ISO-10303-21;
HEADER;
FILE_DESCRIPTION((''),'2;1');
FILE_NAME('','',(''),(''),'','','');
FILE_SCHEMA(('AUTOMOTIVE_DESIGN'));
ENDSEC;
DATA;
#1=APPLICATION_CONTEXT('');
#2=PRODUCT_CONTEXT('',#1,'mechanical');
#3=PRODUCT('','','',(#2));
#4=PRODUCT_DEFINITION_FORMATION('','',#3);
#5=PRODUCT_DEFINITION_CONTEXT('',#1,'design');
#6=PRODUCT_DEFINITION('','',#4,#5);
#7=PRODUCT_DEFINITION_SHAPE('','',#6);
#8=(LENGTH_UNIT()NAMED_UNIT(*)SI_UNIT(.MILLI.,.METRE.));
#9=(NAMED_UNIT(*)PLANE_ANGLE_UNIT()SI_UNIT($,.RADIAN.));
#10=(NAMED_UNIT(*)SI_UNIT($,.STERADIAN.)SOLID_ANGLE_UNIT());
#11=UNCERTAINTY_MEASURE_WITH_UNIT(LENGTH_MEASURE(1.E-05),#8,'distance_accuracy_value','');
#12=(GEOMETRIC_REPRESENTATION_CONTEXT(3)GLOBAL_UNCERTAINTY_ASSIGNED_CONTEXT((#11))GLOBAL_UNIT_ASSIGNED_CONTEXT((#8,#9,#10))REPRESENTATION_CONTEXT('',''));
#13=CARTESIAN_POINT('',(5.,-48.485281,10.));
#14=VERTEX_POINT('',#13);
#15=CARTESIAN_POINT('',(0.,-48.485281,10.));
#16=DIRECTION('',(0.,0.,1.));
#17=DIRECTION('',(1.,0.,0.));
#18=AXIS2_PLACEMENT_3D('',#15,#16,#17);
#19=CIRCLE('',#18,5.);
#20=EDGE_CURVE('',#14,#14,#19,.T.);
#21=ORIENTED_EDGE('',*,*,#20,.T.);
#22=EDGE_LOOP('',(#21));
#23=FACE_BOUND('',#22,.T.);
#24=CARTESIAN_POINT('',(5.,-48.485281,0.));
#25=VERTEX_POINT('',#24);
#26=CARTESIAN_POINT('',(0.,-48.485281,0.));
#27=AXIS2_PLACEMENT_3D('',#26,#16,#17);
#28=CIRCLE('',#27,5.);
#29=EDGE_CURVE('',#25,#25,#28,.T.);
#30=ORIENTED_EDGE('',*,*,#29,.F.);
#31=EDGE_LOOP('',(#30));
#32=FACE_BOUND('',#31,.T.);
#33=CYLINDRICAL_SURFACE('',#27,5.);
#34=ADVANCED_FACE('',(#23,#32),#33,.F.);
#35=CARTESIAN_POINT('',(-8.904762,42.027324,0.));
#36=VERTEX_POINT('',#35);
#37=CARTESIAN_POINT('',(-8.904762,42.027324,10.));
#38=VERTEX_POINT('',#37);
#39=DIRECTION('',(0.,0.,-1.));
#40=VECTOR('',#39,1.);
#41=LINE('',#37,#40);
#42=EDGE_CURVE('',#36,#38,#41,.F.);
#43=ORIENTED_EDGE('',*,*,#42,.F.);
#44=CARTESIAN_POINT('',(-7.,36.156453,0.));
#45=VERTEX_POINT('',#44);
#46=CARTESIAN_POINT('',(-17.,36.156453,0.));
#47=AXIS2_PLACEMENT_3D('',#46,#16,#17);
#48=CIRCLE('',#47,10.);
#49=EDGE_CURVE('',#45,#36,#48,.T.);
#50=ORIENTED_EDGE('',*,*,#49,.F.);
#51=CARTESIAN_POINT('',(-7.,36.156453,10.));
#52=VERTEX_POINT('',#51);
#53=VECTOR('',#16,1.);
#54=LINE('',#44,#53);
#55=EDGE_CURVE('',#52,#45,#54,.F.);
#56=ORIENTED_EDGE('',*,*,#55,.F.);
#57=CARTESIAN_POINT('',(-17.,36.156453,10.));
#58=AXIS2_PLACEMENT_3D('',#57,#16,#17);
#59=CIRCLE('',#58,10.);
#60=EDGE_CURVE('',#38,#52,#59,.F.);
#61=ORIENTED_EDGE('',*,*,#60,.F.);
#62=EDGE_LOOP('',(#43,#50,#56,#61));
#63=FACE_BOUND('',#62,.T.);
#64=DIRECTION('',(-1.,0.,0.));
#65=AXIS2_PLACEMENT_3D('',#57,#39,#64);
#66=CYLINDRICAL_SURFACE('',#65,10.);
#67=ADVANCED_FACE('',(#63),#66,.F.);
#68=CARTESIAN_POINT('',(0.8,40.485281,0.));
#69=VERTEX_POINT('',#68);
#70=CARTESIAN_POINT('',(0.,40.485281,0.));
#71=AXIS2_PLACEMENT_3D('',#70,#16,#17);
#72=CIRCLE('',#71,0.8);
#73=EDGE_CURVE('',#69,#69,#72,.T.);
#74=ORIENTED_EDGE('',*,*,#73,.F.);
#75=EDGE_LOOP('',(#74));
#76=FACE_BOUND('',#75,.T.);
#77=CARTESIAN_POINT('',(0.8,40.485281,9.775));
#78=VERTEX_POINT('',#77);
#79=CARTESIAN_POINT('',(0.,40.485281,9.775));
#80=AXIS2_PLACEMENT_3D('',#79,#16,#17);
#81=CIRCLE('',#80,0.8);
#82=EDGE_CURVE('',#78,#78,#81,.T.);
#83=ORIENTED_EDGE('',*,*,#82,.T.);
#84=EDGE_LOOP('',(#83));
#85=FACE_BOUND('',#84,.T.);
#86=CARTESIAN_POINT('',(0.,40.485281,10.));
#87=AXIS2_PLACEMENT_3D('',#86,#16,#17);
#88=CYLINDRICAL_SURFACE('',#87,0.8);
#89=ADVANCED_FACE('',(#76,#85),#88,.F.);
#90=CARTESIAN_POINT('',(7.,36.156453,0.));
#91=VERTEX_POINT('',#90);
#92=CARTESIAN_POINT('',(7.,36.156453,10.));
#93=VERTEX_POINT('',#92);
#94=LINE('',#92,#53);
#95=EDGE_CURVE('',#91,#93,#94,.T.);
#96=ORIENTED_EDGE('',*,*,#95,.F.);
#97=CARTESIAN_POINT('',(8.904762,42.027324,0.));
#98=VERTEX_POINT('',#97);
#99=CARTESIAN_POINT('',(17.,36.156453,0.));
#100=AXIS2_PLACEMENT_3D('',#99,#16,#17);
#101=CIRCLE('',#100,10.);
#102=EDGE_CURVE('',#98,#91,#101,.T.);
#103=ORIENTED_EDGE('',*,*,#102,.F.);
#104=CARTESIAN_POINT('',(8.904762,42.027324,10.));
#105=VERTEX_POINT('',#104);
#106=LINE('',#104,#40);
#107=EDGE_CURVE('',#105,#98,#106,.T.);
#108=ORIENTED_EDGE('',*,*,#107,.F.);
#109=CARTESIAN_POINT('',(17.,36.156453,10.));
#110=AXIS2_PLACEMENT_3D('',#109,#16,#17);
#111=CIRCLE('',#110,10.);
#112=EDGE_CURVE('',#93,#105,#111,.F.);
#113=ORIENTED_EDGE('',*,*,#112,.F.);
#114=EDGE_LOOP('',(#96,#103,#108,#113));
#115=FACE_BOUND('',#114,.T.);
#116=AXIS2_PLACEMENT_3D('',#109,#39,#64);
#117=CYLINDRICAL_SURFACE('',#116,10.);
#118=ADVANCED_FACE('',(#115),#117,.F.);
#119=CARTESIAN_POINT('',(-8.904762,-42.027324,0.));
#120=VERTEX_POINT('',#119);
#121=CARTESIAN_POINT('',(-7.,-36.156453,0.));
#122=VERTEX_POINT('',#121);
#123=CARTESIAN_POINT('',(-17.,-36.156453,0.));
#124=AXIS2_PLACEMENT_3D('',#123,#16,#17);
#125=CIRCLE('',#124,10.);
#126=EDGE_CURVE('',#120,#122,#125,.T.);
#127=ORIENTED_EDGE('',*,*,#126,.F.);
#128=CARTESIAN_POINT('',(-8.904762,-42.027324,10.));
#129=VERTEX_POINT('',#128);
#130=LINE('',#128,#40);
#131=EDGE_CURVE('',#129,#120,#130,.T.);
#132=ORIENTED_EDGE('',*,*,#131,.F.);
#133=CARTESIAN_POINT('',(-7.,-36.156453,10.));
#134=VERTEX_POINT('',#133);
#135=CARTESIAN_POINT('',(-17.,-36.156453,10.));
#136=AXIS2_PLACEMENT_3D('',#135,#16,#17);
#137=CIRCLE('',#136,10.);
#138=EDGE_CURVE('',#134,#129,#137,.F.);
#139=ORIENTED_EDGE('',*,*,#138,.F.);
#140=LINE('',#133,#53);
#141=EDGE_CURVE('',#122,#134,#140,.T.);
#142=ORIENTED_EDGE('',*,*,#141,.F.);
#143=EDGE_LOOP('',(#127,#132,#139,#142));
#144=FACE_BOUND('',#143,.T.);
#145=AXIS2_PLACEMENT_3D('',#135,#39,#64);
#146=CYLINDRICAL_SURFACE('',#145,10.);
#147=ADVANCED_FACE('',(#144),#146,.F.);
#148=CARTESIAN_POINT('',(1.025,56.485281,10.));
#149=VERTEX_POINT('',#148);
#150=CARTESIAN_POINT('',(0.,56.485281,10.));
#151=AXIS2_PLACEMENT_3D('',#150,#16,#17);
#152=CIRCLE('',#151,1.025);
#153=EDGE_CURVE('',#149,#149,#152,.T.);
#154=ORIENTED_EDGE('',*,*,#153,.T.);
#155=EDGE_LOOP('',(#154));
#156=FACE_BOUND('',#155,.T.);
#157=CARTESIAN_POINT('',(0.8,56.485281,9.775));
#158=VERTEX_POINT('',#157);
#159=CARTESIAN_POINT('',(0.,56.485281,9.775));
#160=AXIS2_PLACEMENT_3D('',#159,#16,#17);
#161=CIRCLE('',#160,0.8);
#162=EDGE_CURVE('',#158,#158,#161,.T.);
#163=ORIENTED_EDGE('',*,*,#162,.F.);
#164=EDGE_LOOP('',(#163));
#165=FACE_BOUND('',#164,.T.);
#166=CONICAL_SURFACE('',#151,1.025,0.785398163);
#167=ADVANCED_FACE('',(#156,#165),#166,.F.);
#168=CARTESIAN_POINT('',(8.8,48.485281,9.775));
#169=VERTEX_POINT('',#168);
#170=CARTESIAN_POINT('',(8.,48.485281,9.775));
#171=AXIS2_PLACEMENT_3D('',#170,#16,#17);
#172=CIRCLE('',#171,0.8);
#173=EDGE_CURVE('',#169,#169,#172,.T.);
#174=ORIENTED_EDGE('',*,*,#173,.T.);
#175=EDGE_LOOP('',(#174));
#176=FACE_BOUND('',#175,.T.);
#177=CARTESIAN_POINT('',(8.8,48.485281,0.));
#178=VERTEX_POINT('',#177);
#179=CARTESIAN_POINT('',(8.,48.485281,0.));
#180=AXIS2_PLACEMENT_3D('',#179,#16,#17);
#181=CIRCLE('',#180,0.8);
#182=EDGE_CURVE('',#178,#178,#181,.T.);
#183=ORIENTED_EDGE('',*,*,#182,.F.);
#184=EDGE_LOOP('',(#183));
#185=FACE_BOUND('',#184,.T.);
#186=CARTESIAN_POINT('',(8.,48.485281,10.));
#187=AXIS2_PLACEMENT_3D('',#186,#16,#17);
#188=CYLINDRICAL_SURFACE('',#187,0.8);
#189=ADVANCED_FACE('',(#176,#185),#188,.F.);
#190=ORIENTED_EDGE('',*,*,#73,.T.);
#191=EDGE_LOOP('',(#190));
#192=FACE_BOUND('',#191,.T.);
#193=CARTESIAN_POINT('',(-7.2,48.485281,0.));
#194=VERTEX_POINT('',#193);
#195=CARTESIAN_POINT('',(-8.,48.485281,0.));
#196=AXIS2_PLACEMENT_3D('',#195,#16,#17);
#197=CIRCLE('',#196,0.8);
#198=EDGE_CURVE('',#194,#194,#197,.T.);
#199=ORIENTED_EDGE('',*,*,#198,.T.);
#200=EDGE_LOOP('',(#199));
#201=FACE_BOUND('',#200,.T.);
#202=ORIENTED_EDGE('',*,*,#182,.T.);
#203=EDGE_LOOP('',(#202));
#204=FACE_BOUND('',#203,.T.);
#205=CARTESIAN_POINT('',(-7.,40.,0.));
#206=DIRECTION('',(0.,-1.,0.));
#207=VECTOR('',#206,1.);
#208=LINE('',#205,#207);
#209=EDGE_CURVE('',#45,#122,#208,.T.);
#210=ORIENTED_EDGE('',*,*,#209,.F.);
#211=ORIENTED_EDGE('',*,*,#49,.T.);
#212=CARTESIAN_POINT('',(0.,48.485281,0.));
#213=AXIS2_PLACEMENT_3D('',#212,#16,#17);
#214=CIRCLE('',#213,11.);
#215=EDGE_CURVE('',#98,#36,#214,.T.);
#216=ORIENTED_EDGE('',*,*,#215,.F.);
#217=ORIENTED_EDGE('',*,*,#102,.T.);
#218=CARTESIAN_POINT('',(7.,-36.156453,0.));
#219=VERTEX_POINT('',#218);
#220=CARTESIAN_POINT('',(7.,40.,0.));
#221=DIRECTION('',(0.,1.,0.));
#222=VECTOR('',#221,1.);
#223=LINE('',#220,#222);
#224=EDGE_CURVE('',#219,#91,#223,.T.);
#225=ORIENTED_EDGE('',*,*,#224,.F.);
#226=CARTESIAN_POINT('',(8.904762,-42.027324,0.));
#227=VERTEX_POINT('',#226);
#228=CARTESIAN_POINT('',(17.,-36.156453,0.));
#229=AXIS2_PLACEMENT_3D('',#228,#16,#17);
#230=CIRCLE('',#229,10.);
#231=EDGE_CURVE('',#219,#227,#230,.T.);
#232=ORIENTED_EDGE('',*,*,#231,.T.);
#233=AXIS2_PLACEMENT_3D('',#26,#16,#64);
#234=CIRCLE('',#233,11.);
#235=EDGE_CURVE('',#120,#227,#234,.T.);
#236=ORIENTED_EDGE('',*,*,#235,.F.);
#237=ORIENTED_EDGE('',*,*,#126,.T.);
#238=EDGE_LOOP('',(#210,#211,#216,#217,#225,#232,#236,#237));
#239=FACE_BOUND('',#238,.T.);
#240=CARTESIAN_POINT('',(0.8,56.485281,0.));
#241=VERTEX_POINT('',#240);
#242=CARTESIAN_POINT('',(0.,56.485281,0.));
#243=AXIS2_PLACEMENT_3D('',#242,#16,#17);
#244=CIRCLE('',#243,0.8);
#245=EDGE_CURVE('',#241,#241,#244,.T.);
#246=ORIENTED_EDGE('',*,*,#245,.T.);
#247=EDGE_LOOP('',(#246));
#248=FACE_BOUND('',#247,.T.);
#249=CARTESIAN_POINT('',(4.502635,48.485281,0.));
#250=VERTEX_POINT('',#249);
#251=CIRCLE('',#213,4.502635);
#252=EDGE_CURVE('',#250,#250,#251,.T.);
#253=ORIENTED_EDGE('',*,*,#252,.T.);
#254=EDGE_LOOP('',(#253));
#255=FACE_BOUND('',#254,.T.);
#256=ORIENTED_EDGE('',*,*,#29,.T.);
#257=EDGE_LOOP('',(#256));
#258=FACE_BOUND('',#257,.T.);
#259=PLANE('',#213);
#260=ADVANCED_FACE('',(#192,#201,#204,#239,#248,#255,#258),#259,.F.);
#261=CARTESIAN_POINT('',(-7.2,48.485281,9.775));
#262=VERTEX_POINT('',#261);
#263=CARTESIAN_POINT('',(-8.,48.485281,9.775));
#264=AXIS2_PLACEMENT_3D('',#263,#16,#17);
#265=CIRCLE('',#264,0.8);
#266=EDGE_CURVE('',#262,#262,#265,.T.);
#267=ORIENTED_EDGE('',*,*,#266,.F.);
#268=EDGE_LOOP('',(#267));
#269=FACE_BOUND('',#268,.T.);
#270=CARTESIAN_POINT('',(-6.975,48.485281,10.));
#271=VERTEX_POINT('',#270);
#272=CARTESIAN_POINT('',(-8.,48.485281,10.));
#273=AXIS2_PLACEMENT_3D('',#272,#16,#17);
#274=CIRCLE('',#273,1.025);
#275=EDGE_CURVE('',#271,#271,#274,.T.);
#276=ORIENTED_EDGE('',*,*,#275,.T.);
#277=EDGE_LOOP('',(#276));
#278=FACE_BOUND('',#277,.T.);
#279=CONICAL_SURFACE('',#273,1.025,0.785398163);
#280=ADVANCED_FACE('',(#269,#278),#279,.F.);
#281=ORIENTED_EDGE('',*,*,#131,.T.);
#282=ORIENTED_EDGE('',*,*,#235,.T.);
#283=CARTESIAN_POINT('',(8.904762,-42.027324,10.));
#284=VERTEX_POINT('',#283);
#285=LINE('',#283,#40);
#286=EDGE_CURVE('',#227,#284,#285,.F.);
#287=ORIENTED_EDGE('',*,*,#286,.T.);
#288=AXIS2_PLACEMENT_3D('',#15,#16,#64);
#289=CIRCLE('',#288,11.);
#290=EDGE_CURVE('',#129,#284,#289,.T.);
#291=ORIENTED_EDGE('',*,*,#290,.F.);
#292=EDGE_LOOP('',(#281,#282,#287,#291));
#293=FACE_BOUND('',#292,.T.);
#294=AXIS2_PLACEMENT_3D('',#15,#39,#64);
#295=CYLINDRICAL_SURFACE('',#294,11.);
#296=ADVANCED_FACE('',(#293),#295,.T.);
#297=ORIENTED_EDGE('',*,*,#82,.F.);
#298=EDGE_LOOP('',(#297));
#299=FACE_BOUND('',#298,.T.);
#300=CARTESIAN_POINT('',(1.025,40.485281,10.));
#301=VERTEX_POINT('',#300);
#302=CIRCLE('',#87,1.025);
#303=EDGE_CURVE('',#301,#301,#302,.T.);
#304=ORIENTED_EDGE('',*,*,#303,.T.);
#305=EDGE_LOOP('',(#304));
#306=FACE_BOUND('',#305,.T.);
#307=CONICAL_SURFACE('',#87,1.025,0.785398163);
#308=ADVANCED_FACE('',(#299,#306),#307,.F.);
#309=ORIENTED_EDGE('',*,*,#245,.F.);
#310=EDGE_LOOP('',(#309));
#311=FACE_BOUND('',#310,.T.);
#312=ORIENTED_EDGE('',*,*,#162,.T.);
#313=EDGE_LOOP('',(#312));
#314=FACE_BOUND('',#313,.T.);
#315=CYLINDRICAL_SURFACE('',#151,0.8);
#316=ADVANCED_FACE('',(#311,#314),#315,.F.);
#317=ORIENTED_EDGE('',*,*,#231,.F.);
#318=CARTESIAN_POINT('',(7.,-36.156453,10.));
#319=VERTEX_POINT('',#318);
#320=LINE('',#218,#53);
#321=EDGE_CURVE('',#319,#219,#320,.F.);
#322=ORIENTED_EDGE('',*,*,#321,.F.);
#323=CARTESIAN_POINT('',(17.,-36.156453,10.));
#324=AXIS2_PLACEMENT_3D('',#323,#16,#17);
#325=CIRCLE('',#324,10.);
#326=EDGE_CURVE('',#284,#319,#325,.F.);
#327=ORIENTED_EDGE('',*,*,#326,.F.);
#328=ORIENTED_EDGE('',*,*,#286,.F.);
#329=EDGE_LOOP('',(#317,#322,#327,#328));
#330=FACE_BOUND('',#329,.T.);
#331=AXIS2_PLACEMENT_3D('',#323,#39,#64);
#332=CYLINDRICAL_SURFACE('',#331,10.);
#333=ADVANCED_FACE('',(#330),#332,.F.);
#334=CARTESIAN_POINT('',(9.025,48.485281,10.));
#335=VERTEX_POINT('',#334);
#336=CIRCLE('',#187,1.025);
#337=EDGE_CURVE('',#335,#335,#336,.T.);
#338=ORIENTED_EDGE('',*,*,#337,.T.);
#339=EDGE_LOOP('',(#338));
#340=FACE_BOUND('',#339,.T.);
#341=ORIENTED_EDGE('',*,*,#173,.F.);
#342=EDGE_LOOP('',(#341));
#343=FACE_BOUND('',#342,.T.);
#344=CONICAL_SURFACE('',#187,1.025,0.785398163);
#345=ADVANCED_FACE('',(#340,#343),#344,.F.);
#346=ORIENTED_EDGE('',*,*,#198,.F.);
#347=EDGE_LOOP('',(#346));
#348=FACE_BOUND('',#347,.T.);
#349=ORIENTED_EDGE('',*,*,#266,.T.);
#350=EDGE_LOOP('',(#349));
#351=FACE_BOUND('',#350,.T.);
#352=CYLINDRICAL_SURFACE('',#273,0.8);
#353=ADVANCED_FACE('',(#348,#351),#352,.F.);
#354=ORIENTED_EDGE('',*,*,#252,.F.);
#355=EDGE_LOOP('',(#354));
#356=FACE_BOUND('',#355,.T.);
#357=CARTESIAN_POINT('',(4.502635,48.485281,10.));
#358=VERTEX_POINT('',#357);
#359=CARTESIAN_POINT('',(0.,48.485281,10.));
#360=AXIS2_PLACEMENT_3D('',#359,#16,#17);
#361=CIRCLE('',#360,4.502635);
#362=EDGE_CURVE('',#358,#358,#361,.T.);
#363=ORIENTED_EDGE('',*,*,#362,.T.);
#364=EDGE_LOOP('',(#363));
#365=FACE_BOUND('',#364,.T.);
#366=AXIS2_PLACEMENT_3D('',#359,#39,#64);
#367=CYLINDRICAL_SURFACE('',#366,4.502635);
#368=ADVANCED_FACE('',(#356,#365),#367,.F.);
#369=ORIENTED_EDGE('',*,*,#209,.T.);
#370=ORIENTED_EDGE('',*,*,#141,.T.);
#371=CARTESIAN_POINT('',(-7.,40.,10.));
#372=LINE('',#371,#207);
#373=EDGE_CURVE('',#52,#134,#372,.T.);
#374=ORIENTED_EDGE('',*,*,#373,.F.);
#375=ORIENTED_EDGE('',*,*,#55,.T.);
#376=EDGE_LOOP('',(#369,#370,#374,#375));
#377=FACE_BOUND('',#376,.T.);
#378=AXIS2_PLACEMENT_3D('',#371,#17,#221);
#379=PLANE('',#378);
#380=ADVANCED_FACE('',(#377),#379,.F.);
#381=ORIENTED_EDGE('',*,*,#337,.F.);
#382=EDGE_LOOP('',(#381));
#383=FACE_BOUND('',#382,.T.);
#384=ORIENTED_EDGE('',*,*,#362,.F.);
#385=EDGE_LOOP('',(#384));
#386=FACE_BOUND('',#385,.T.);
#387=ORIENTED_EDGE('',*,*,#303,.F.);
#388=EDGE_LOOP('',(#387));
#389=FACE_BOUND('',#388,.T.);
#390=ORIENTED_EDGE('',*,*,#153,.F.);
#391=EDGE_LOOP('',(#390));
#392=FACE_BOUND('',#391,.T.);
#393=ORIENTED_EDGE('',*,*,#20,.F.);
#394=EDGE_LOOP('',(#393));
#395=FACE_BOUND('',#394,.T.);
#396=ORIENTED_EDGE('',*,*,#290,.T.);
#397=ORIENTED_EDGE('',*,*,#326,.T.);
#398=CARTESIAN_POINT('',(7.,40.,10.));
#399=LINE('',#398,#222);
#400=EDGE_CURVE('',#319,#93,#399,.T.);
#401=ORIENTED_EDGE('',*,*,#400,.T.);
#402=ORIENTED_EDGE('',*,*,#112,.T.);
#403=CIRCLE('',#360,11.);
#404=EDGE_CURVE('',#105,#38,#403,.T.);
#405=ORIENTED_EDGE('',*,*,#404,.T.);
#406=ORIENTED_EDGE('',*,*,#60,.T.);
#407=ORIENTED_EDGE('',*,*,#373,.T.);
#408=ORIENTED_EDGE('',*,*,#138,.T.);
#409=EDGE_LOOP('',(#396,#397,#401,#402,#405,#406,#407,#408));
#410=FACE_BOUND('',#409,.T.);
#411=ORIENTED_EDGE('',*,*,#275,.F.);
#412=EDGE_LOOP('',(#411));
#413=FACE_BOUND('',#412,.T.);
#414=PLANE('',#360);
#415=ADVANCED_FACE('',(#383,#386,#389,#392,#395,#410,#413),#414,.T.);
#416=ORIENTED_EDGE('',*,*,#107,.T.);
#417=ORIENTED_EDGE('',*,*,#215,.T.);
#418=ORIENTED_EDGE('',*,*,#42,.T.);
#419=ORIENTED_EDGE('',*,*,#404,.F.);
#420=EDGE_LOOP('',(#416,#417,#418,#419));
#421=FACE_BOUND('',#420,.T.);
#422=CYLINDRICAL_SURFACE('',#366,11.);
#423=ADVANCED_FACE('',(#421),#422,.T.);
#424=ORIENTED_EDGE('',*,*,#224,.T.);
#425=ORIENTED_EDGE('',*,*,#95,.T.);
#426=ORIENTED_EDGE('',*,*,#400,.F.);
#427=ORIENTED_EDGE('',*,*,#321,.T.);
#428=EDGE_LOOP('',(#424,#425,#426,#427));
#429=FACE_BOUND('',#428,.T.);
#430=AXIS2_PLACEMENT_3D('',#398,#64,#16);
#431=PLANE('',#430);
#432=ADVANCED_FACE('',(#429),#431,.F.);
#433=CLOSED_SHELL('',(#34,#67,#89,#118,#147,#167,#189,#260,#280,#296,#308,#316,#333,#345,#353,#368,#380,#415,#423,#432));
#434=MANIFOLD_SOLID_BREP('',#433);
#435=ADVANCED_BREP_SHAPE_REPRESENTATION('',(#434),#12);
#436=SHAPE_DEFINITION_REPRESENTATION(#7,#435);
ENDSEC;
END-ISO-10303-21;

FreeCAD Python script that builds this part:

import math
import FreeCAD as App
import Part
import Sketcher
from FreeCAD import Vector
Q = App.Units.Quantity


def edges_at(feature, points):
    """Names of the edges that pass closest to the given points."""
    edges = feature.Shape.Edges
    near = lambda p: min(range(len(edges)), key=lambda i: edges[i].distToShape(Part.Vertex(*p))[0])
    return sorted({f"Edge{near(p) + 1}" for p in points})

doc = App.newDocument("Part")
body = doc.addObject("PartDesign::Body", "Body")

# Sketch on XY plane
sketch1 = body.newObject("Sketcher::SketchObject", "Sketch")
sketch1.AttachmentSupport = (doc.getObject("XY_Plane"), [""])
sketch1.MapMode = "FlatFace"
sketch1.addGeometry([
    Part.LineSegment(Vector(-7, 40, 0), Vector(-7, -40, 0)),  # 0
    Part.ArcOfCircle(Part.Circle(Vector(0, -48.5, 0), Vector(0, 0, 1), 11), math.radians(130), math.radians(410)),  # 1
    Part.LineSegment(Vector(7, -40, 0), Vector(7, 40, 0)),  # 2
    Part.ArcOfCircle(Part.Circle(Vector(0, 48.5, 0), Vector(0, 0, 1), 11), math.radians(-50), math.radians(230)),  # 3
    Part.Circle(Vector(0, 48.5, 0), Vector(0, 0, 1), 4.5),  # 4
], False)
sketch1.addConstraint([
    Sketcher.Constraint("Coincident", 0, 2, 1, 1),
    Sketcher.Constraint("Coincident", 1, 2, 2, 1),
    Sketcher.Constraint("Coincident", 2, 2, 3, 1),
    Sketcher.Constraint("Coincident", 3, 2, 0, 1),
    Sketcher.Constraint("Vertical", 0),
    Sketcher.Constraint("Vertical", 2),
    Sketcher.Constraint("Coincident", 4, 3, 3, 3),
    Sketcher.Constraint("Equal", 1, 3),
    Sketcher.Constraint("Symmetric", 1, 3, 3, 3, -1, 1),
    Sketcher.Constraint("Symmetric", 0, 2, 1, 2, -2),
    Sketcher.Constraint("Radius", 1, Q("11 mm")),
    Sketcher.Constraint("DistanceY", 0, 2, 0, 1, Q("80 mm")),
    Sketcher.Constraint("DistanceX", 0, 2, -1, 1, Q("7 mm")),
    Sketcher.Constraint("Diameter", 4, Q("9.005271 mm")),
])
pad1 = body.newObject("PartDesign::Pad", "Pad")
pad1.Profile = sketch1
pad1.Length = 10

# Sketch on XY plane
sketch2 = body.newObject("Sketcher::SketchObject", "Sketch001")
sketch2.AttachmentSupport = (doc.getObject("XY_Plane"), [""])
sketch2.MapMode = "FlatFace"
sketch2.AttachmentOffset = App.Placement(Vector(0, 0, 10), App.Rotation())
sketch2.addGeometry([
    Part.Circle(Vector(-8, 48.5, 0), Vector(0, 0, 1), 0.8),
    Part.Circle(Vector(0, 56.5, 0), Vector(0, 0, 1), 0.8),
    Part.Circle(Vector(8, 48.5, 0), Vector(0, 0, 1), 0.8),
    Part.Circle(Vector(0, 40.5, 0), Vector(0, 0, 1), 0.8),
], False)
sketch2.addConstraint([
    Sketcher.Constraint("Equal", 0, 1),
    Sketcher.Constraint("Equal", 1, 2),
    Sketcher.Constraint("Equal", 2, 3),
    Sketcher.Constraint("Symmetric", 0, 3, 2, 3, -2),
    Sketcher.Constraint("PointOnObject", 1, 3, -2),
    Sketcher.Constraint("PointOnObject", 3, 3, -2),
    Sketcher.Constraint("Diameter", 0, Q("1.6 mm")),
    Sketcher.Constraint("DistanceX", 0, 3, -1, 1, Q("8 mm")),
    Sketcher.Constraint("DistanceY", 0, 3, 1, 3, Q("8 mm")),
    Sketcher.Constraint("DistanceY", 3, 3, 0, 3, Q("8 mm")),
    Sketcher.Constraint("DistanceY", -1, 1, 0, 3, Q("48.485281 mm")),
])
doc.recompute()
hole = body.newObject("PartDesign::Hole", "Hole")
hole.Profile = sketch2
hole.ThreadType = "None"
hole.Diameter = 1.6
hole.DepthType = "ThroughAll"
hole.HoleCutType = "Countersink"
hole.HoleCutDiameter = 2.05
hole.HoleCutCountersinkAngle = 90
doc.recompute()

fillet = body.newObject("PartDesign::Fillet", "Fillet")
fillet.Base = (hole, edges_at(hole, [
    (7, 40, 5),
    (7, -40, 5),
    (-7, -40, 5),
    (-7, 40, 5),
]))
fillet.Radius = 10

# Sketch on XY plane
sketch3 = body.newObject("Sketcher::SketchObject", "Sketch002")
sketch3.AttachmentSupport = (doc.getObject("XY_Plane"), [""])
sketch3.MapMode = "FlatFace"
sketch3.AttachmentOffset = App.Placement(Vector(0, 0, 10), App.Rotation())
sketch3.addGeometry(Part.Circle(Vector(0, -48, 0), Vector(0, 0, 1), 5), False)
sketch3.addConstraint([
    Sketcher.Constraint("PointOnObject", 0, 3, -2),
    Sketcher.Constraint("Diameter", 0, Q("10 mm")),
    Sketcher.Constraint("DistanceY", 0, 3, -1, 1, Q("48.485281 mm")),
])
pocket1 = body.newObject("PartDesign::Pocket", "Pocket")
pocket1.Profile = sketch3
pocket1.Length = 10

doc.recompute()
